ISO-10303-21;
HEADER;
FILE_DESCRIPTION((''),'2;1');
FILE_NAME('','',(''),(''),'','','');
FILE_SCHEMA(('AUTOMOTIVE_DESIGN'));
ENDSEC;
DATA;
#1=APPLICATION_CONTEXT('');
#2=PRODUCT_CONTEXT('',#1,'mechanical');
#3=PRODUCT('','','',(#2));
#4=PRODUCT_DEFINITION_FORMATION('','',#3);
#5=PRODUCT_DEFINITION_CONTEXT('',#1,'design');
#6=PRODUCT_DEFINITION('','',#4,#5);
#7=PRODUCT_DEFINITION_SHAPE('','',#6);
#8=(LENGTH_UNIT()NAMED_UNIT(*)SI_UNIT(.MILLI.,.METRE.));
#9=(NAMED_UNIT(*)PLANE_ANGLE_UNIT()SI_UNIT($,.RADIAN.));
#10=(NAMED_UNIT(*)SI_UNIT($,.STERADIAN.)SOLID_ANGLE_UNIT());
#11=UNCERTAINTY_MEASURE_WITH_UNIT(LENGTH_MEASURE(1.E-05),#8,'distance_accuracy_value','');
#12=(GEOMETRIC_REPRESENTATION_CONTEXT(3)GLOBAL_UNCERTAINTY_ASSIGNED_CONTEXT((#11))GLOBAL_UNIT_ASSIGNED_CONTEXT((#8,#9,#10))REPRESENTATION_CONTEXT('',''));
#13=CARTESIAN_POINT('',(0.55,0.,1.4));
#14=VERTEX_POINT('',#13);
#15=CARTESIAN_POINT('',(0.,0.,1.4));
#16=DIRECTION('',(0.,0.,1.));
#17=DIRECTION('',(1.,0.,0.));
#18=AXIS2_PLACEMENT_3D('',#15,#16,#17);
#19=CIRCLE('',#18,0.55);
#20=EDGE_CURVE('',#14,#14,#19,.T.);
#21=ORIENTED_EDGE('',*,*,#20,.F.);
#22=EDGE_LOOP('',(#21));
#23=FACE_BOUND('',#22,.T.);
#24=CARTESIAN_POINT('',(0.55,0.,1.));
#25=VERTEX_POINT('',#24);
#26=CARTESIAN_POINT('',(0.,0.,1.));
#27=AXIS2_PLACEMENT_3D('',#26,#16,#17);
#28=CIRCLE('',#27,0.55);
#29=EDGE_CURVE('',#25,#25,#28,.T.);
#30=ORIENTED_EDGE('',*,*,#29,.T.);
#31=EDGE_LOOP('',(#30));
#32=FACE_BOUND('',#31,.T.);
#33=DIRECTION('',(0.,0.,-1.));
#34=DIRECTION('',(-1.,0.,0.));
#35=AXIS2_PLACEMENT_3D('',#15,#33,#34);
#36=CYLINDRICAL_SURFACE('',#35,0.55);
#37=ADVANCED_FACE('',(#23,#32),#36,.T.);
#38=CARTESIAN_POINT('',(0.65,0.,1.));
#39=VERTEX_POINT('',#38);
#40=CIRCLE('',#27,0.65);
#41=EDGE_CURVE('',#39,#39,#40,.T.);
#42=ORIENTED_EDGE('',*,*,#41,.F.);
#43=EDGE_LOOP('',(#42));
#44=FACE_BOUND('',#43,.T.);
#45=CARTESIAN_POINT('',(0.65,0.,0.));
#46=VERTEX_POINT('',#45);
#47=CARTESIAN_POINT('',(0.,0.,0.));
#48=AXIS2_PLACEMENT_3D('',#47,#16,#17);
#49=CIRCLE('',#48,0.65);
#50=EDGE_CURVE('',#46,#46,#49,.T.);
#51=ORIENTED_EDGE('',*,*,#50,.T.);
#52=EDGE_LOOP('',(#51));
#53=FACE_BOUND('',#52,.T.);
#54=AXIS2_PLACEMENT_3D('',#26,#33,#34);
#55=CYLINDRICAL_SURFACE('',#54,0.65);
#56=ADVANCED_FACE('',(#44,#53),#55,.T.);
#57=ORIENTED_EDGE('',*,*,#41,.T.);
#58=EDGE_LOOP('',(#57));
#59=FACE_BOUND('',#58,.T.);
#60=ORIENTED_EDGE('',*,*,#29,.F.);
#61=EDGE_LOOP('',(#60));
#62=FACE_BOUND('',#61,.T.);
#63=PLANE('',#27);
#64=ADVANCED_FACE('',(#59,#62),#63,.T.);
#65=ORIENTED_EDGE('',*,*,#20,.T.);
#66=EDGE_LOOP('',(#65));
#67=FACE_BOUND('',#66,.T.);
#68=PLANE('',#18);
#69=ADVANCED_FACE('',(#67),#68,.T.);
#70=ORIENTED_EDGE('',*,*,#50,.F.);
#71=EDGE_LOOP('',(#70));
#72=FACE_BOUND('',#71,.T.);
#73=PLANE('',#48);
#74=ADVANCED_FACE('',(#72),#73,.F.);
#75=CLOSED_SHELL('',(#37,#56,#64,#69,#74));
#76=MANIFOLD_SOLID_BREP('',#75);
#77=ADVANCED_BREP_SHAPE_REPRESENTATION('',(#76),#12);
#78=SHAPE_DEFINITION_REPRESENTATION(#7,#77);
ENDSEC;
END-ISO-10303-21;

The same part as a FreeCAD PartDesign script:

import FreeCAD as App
import Part
import Sketcher

V = App.Vector

doc = App.newDocument("Part")
body = doc.addObject("PartDesign::Body", "Body")

# Sketch on XY plane
sketch1 = doc.addObject("Sketcher::SketchObject", "Sketch")
body.addObject(sketch1)
sketch1.AttachmentSupport = (doc.XY_Plane, [""])
sketch1.MapMode = "FlatFace"
sketch1.addGeometry(Part.Circle(V(0, 0, 0), V(0, 0, 1), 0.65), False)
sketch1.addConstraint([
    Sketcher.Constraint("Coincident", 0, 3, -1, 1),
    Sketcher.Constraint("Diameter", 0, 1.3),
])
pad1 = doc.addObject("PartDesign::Pad", "Pad")
body.addObject(pad1)
pad1.Profile = sketch1
pad1.Length = 1

# Sketch on XY plane
sketch2 = doc.addObject("Sketcher::SketchObject", "Sketch001")
body.addObject(sketch2)
sketch2.AttachmentSupport = (doc.XY_Plane, [""])
sketch2.MapMode = "FlatFace"
sketch2.AttachmentOffset = App.Placement(V(0, 0, 1), App.Rotation())
sketch2.addGeometry(Part.Circle(V(0, 0, 0), V(0, 0, 1), 0.55), False)
sketch2.addConstraint([
    Sketcher.Constraint("Coincident", 0, 3, -1, 1),
    Sketcher.Constraint("Diameter", 0, 1.1),
])
pad2 = doc.addObject("PartDesign::Pad", "Pad001")
body.addObject(pad2)
pad2.Profile = sketch2
pad2.Length = 0.4

doc.recompute()
